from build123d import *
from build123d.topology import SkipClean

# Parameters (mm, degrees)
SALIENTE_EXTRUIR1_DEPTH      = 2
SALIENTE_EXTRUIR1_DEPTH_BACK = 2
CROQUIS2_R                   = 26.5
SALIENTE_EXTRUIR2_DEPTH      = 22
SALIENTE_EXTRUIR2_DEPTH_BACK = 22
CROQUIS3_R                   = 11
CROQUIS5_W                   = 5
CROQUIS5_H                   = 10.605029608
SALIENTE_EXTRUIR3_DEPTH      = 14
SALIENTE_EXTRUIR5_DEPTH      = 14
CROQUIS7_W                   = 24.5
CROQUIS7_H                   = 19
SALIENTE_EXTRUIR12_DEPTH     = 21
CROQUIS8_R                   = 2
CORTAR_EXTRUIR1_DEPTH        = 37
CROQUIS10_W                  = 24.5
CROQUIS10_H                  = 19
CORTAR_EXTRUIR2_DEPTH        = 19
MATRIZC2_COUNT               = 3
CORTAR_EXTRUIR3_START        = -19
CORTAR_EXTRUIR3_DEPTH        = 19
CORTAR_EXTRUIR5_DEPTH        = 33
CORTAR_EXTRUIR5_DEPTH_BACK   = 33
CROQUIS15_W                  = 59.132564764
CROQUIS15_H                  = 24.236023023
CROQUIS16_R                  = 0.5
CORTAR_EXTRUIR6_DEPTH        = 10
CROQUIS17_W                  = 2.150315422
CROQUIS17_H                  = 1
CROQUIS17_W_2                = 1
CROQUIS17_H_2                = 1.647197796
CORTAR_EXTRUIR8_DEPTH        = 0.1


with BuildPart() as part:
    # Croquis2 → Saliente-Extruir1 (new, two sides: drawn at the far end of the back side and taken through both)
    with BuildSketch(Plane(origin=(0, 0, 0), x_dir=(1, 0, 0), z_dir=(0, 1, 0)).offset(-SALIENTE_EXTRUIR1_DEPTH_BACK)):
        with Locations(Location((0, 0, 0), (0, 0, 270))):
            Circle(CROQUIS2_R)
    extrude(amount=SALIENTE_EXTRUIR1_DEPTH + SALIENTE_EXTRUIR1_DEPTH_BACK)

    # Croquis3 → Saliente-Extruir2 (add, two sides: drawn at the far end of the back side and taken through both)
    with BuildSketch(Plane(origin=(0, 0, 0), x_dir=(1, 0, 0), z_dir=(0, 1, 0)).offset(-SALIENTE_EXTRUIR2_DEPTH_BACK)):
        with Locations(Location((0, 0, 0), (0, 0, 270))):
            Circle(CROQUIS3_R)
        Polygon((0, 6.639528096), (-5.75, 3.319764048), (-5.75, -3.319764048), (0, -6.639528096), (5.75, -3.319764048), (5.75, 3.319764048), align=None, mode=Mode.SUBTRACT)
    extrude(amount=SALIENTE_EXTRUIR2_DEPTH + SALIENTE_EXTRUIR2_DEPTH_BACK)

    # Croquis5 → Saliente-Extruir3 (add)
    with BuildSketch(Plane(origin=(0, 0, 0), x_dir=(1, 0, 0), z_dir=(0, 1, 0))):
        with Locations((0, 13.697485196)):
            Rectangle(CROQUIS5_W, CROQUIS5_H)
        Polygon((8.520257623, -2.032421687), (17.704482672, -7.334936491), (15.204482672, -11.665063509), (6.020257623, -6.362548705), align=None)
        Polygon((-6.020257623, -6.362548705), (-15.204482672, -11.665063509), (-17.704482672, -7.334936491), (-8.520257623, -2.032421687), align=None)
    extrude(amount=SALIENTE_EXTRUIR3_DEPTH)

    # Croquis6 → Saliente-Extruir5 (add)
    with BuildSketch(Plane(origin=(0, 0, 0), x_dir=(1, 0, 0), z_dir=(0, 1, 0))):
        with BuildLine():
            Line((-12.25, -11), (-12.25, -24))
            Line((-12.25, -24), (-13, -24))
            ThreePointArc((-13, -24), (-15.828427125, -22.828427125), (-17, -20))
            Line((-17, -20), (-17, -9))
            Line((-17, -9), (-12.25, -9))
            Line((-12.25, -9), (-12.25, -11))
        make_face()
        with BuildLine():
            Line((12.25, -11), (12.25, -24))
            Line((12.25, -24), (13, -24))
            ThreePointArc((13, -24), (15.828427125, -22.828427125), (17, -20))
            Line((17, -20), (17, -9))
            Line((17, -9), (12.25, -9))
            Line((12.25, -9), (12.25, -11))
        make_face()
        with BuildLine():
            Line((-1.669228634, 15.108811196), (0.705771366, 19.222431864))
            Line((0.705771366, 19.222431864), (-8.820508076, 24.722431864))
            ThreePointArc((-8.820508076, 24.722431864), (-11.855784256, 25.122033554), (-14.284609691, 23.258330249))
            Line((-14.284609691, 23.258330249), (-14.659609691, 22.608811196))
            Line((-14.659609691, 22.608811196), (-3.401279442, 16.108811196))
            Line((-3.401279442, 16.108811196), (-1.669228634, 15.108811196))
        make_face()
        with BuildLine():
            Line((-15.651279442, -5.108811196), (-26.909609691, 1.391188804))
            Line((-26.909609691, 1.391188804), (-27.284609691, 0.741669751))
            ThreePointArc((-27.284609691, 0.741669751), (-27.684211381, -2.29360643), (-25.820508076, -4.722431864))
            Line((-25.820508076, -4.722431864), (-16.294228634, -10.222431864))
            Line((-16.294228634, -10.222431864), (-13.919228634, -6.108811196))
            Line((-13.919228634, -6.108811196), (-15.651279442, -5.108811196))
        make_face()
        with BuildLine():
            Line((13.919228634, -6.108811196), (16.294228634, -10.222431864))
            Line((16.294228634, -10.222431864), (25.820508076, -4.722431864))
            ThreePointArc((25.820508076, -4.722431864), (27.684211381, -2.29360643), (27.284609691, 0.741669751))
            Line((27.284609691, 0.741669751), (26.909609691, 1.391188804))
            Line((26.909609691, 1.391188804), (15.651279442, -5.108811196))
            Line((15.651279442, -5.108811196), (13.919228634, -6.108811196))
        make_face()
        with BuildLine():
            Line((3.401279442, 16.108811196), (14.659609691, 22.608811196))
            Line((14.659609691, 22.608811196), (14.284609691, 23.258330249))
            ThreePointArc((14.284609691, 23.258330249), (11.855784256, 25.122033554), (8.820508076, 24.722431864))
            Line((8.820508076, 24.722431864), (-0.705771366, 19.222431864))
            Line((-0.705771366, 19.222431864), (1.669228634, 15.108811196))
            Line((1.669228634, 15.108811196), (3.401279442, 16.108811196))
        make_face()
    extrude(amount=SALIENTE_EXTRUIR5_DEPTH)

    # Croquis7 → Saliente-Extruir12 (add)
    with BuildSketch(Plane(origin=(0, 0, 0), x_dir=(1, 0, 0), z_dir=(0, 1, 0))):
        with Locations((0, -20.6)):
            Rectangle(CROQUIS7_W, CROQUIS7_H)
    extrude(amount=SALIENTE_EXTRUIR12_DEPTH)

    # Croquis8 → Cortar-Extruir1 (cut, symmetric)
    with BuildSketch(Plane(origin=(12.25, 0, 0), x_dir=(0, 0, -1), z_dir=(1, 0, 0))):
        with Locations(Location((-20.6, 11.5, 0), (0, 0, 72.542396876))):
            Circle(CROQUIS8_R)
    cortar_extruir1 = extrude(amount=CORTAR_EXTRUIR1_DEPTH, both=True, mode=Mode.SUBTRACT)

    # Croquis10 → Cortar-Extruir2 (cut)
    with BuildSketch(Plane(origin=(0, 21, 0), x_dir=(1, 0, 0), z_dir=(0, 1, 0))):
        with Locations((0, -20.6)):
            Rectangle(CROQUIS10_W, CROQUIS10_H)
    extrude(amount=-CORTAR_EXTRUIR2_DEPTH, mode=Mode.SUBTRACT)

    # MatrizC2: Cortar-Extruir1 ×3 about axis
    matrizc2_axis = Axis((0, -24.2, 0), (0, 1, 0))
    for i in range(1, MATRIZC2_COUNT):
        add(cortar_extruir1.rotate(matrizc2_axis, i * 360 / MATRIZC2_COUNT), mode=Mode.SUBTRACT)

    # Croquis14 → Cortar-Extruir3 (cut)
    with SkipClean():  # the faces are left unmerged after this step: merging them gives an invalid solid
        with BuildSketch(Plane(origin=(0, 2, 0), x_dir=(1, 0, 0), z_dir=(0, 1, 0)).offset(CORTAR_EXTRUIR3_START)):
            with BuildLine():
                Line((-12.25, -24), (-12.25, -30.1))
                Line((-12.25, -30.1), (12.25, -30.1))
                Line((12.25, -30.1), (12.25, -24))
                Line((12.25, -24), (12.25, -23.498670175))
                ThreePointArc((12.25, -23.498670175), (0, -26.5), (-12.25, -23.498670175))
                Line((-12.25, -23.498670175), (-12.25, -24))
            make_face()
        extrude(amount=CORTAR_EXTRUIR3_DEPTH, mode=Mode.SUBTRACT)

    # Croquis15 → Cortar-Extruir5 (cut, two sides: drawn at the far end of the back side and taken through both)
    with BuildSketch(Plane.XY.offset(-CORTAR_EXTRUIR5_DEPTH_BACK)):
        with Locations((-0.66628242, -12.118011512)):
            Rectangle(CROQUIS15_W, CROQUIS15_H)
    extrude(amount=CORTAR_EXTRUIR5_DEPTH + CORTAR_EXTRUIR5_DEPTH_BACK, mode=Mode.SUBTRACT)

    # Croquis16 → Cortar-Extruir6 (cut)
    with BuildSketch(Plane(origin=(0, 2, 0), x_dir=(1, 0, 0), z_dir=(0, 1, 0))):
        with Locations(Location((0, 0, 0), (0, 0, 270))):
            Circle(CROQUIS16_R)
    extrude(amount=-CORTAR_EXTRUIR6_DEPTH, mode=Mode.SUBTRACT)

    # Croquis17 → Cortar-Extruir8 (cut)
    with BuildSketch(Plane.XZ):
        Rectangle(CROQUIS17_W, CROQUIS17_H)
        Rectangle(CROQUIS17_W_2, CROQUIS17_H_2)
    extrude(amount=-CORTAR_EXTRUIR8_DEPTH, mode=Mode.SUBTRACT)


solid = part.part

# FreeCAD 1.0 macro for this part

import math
import FreeCAD as App
import Part
import Sketcher
Q = App.Units.Quantity

doc = App.newDocument("Part")
body = doc.addObject("PartDesign::Body", "Body")

sketch1 = body.newObject("Sketcher::SketchObject", "Sketch")
sketch1.AttachmentSupport = (doc.getObject("XZ_Plane"), [""])
sketch1.MapMode = "FlatFace"
sketch1.addGeometry(Part.Circle(App.Vector(0, 0, 0), App.Vector(0, 0, 1), 26), False)
sketch1.addConstraint([
    Sketcher.Constraint("Coincident", 0, 3, -1, 1),
    Sketcher.Constraint("Diameter", 0, Q("53 mm")),
])
pad1 = body.newObject("PartDesign::Pad", "Pad")
pad1.Profile = sketch1
pad1.Type = "TwoLengths"
pad1.Length = 2
pad1.Length2 = 2
pad1.Reversed = True

sketch2 = body.newObject("Sketcher::SketchObject", "Sketch001")
sketch2.AttachmentSupport = (doc.getObject("XZ_Plane"), [""])
sketch2.MapMode = "FlatFace"
sketch2.addGeometry([
    Part.Circle(App.Vector(0, 0, 0), App.Vector(0, 0, 1), 11),
    Part.LineSegment(App.Vector(-6, -3, 0), App.Vector(0, -7, 0)),
    Part.LineSegment(App.Vector(0, -7, 0), App.Vector(6, -3, 0)),
    Part.LineSegment(App.Vector(6, -3, 0), App.Vector(6, 3, 0)),
    Part.LineSegment(App.Vector(6, 3, 0), App.Vector(0, 7, 0)),
    Part.LineSegment(App.Vector(0, 7, 0), App.Vector(-6, 3, 0)),
    Part.LineSegment(App.Vector(-6, 3, 0), App.Vector(-6, -3, 0)),
], False)
sketch2.addConstraint([
    Sketcher.Constraint("Coincident", 1, 2, 2, 1),
    Sketcher.Constraint("Coincident", 2, 2, 3, 1),
    Sketcher.Constraint("Coincident", 3, 2, 4, 1),
    Sketcher.Constraint("Coincident", 4, 2, 5, 1),
    Sketcher.Constraint("Coincident", 5, 2, 6, 1),
    Sketcher.Constraint("Coincident", 6, 2, 1, 1),
    Sketcher.Constraint("Vertical", 3),
    Sketcher.Constraint("Vertical", 6),
    Sketcher.Constraint("Coincident", 0, 3, -1, 1),
    Sketcher.Constraint("Symmetric", 1, 2, 4, 2, -1, 1),
    Sketcher.Constraint("Symmetric", 2, 2, 5, 2, -1, 1),
    Sketcher.Constraint("PointOnObject", 1, 2, -2),
    Sketcher.Constraint("Parallel", 1, 4),
    Sketcher.Constraint("Horizontal", 3, 2, 5, 2),
    Sketcher.Constraint("Diameter", 0, Q("22 mm")),
    Sketcher.Constraint("Angle", 1, Q("-30 deg")),
    Sketcher.Constraint("DistanceX", 5, 2, 3, 2, Q("11.5 mm")),
    Sketcher.Constraint("DistanceY", 3, 1, 3, 2, Q("6.639528 mm")),
])
pad2 = body.newObject("PartDesign::Pad", "Pad001")
pad2.Profile = sketch2
pad2.Type = "TwoLengths"
pad2.Length = 22
pad2.Length2 = 22
pad2.Reversed = True

sketch3 = body.newObject("Sketcher::SketchObject", "Sketch002")
sketch3.AttachmentSupport = (doc.getObject("XZ_Plane"), [""])
sketch3.MapMode = "FlatFace"
sketch3.addGeometry([
    Part.LineSegment(App.Vector(-2.5, -19, 0), App.Vector(-2.5, -8.4, 0)),
    Part.LineSegment(App.Vector(-2.5, -8.4, 0), App.Vector(2.5, -8.4, 0)),
    Part.LineSegment(App.Vector(2.5, -8.4, 0), App.Vector(2.5, -19, 0)),
    Part.LineSegment(App.Vector(2.5, -19, 0), App.Vector(-2.5, -19, 0)),
    Part.LineSegment(App.Vector(17.7, 7.3, 0), App.Vector(8.5, 2, 0)),
    Part.LineSegment(App.Vector(8.5, 2, 0), App.Vector(6, 6.4, 0)),
    Part.LineSegment(App.Vector(6, 6.4, 0), App.Vector(15.2, 11.7, 0)),
    Part.LineSegment(App.Vector(15.2, 11.7, 0), App.Vector(17.7, 7.3, 0)),
    Part.LineSegment(App.Vector(-15.2, 11.7, 0), App.Vector(-6, 6.4, 0)),
    Part.LineSegment(App.Vector(-6, 6.4, 0), App.Vector(-8.5, 2, 0)),
    Part.LineSegment(App.Vector(-8.5, 2, 0), App.Vector(-17.7, 7.3, 0)),
    Part.LineSegment(App.Vector(-17.7, 7.3, 0), App.Vector(-15.2, 11.7, 0)),
], False)
sketch3.addConstraint([
    Sketcher.Constraint("Coincident", 0, 2, 1, 1),
    Sketcher.Constraint("Coincident", 1, 2, 2, 1),
    Sketcher.Constraint("Coincident", 2, 2, 3, 1),
    Sketcher.Constraint("Coincident", 3, 2, 0, 1),
    Sketcher.Constraint("Coincident", 4, 2, 5, 1),
    Sketcher.Constraint("Coincident", 5, 2, 6, 1),
    Sketcher.Constraint("Coincident", 6, 2, 7, 1),
    Sketcher.Constraint("Coincident", 7, 2, 4, 1),
    Sketcher.Constraint("Coincident", 8, 2, 9, 1),
    Sketcher.Constraint("Coincident", 9, 2, 10, 1),
    Sketcher.Constraint("Coincident", 10, 2, 11, 1),
    Sketcher.Constraint("Coincident", 11, 2, 8, 1),
    Sketcher.Constraint("Vertical", 0),
    Sketcher.Constraint("Horizontal", 1),
    Sketcher.Constraint("Vertical", 2),
    Sketcher.Constraint("Horizontal", 3),
    Sketcher.Constraint("Symmetric", 5, 2, 8, 2, -2),
    Sketcher.Constraint("Symmetric", 4, 2, 9, 2, -2),
    Sketcher.Constraint("Symmetric", 7, 2, 10, 2, -2),
    Sketcher.Constraint("Symmetric", 6, 2, 11, 2, -2),
    Sketcher.Constraint("Perpendicular", 4, 5),
    Sketcher.Constraint("Perpendicular", 5, 6),
    Sketcher.Constraint("Perpendicular", 6, 7),
    Sketcher.Constraint("DistanceX", 1, 1, 1, 2, Q("5 mm")),
    Sketcher.Constraint("Angle", 4, Q("-150 deg")),
    Sketcher.Constraint("Distance", 5, Q("5 mm")),
    Sketcher.Constraint("DistanceY", 2, 2, -1, 1, Q("19 mm")),
    Sketcher.Constraint("DistanceX", 0, 2, -1, 1, Q("2.5 mm")),
    Sketcher.Constraint("DistanceY", 0, 1, 0, 2, Q("10.60503 mm")),
    Sketcher.Constraint("Distance", 4, Q("10.60503 mm")),
    Sketcher.Constraint("DistanceY", -1, 1, 4, 2, Q("2.032422 mm")),
    Sketcher.Constraint("DistanceX", 8, 2, 6, 2, Q("21.22474 mm")),
])
pad3 = body.newObject("PartDesign::Pad", "Pad002")
pad3.Profile = sketch3
pad3.Length = 14
pad3.Reversed = True

sketch4 = body.newObject("Sketcher::SketchObject", "Sketch003")
sketch4.AttachmentSupport = (doc.getObject("XZ_Plane"), [""])
sketch4.MapMode = "FlatFace"
sketch4.addGeometry([
    Part.LineSegment(App.Vector(-12.2, 24, 0), App.Vector(-12.2, 9, 0)),
    Part.LineSegment(App.Vector(-12.2, 9, 0), App.Vector(-15.6, 9, 0)),
    Part.LineSegment(App.Vector(-15.6, 9, 0), App.Vector(-13.9, 6.1, 0)),
    Part.LineSegment(App.Vector(-13.9, 6.1, 0), App.Vector(-15.7, 5.1, 0)),
    Part.LineSegment(App.Vector(-15.7, 5.1, 0), App.Vector(-26.9, -1.4, 0)),
    Part.LineSegment(App.Vector(-26.9, -1.4, 0), App.Vector(-27.3, -0.7, 0)),
    Part.ArcOfCircle(Part.Circle(App.Vector(-23.8, 1.3, 0), App.Vector(0, 0, 1), 4), math.radians(120), math.radians(210)),
    Part.LineSegment(App.Vector(-25.8, 4.7, 0), App.Vector(-17, 9.8, 0)),
    Part.LineSegment(App.Vector(-17, 9.8, 0), App.Vector(-17, 20, 0)),
    Part.ArcOfCircle(Part.Circle(App.Vector(-13, 20, 0), App.Vector(0, 0, 1), 4), math.radians(90), math.radians(180)),
    Part.LineSegment(App.Vector(-13, 24, 0), App.Vector(-12.2, 24, 0)),
    Part.LineSegment(App.Vector(12.2, 9, 0), App.Vector(12.2, 24, 0)),
    Part.LineSegment(App.Vector(12.2, 24, 0), App.Vector(13, 24, 0)),
    Part.ArcOfCircle(Part.Circle(App.Vector(13, 20, 0), App.Vector(0, 0, 1), 4), math.radians(0), math.radians(90)),
    Part.LineSegment(App.Vector(17, 20, 0), App.Vector(17, 9.8, 0)),
    Part.LineSegment(App.Vector(17, 9.8, 0), App.Vector(25.8, 4.7, 0)),
    Part.ArcOfCircle(Part.Circle(App.Vector(23.8, 1.3, 0), App.Vector(0, 0, 1), 4), math.radians(-30), math.radians(60)),
    Part.LineSegment(App.Vector(27.3, -0.7, 0), App.Vector(26.9, -1.4, 0)),
    Part.LineSegment(App.Vector(26.9, -1.4, 0), App.Vector(15.7, 5.1, 0)),
    Part.LineSegment(App.Vector(15.7, 5.1, 0), App.Vector(13.9, 6.1, 0)),
    Part.LineSegment(App.Vector(13.9, 6.1, 0), App.Vector(15.6, 9, 0)),
    Part.LineSegment(App.Vector(15.6, 9, 0), App.Vector(12.2, 9, 0)),
    Part.LineSegment(App.Vector(-3.4, -16.1, 0), App.Vector(-1.7, -15.1, 0)),
    Part.LineSegment(App.Vector(-1.7, -15.1, 0), App.Vector(0, -18, 0)),
    Part.LineSegment(App.Vector(0, -18, 0), App.Vector(1.7, -15.1, 0)),
    Part.LineSegment(App.Vector(1.7, -15.1, 0), App.Vector(3.4, -16.1, 0)),
    Part.LineSegment(App.Vector(3.4, -16.1, 0), App.Vector(14.7, -22.6, 0)),
    Part.LineSegment(App.Vector(14.7, -22.6, 0), App.Vector(14.3, -23.3, 0)),
    Part.ArcOfCircle(Part.Circle(App.Vector(10.8, -21.3, 0), App.Vector(0, 0, 1), 4), math.radians(-120), math.radians(-30)),
    Part.LineSegment(App.Vector(8.8, -24.7, 0), App.Vector(0, -19.6, 0)),
    Part.LineSegment(App.Vector(0, -19.6, 0), App.Vector(-8.8, -24.7, 0)),
    Part.ArcOfCircle(Part.Circle(App.Vector(-10.8, -21.3, 0), App.Vector(0, 0, 1), 4), math.radians(-150), math.radians(-60)),
    Part.LineSegment(App.Vector(-14.3, -23.3, 0), App.Vector(-14.7, -22.6, 0)),
    Part.LineSegment(App.Vector(-14.7, -22.6, 0), App.Vector(-3.4, -16.1, 0)),
], False)
sketch4.addConstraint([
    Sketcher.Constraint("Coincident", 0, 2, 1, 1),
    Sketcher.Constraint("Coincident", 1, 2, 2, 1),
    Sketcher.Constraint("Coincident", 2, 2, 3, 1),
    Sketcher.Constraint("Coincident", 3, 2, 4, 1),
    Sketcher.Constraint("Coincident", 4, 2, 5, 1),
    Sketcher.Constraint("Tangent", 5, 2, 6, 2),
    Sketcher.Constraint("Tangent", 6, 1, 7, 1),
    Sketcher.Constraint("Coincident", 7, 2, 8, 1),
    Sketcher.Constraint("Tangent", 8, 2, 9, 2),
    Sketcher.Constraint("Tangent", 9, 1, 10, 1),
    Sketcher.Constraint("Coincident", 10, 2, 0, 1),
    Sketcher.Constraint("Coincident", 11, 2, 12, 1),
    Sketcher.Constraint("Tangent", 12, 2, 13, 2),
    Sketcher.Constraint("Tangent", 13, 1, 14, 1),
    Sketcher.Constraint("Coincident", 14, 2, 15, 1),
    Sketcher.Constraint("Tangent", 15, 2, 16, 2),
    Sketcher.Constraint("Tangent", 16, 1, 17, 1),
    Sketcher.Constraint("Coincident", 17, 2, 18, 1),
    Sketcher.Constraint("Coincident", 18, 2, 19, 1),
    Sketcher.Constraint("Coincident", 19, 2, 20, 1),
    Sketcher.Constraint("Coincident", 20, 2, 21, 1),
    Sketcher.Constraint("Coincident", 21, 2, 11, 1),
    Sketcher.Constraint("Coincident", 22, 2, 23, 1),
    Sketcher.Constraint("Coincident", 23, 2, 24, 1),
    Sketcher.Constraint("Coincident", 24, 2, 25, 1),
    Sketcher.Constraint("Coincident", 25, 2, 26, 1),
    Sketcher.Constraint("Coincident", 26, 2, 27, 1),
    Sketcher.Constraint("Tangent", 27, 2, 28, 2),
    Sketcher.Constraint("Tangent", 28, 1, 29, 1),
    Sketcher.Constraint("Coincident", 29, 2, 30, 1),
    Sketcher.Constraint("Tangent", 30, 2, 31, 2),
    Sketcher.Constraint("Tangent", 31, 1, 32, 1),
    Sketcher.Constraint("Coincident", 32, 2, 33, 1),
    Sketcher.Constraint("Coincident", 33, 2, 22, 1),
    Sketcher.Constraint("Vertical", 0),
    Sketcher.Constraint("Horizontal", 1),
    Sketcher.Constraint("Vertical", 8),
    Sketcher.Constraint("Horizontal", 10),
    Sketcher.Constraint("Vertical", 11),
    Sketcher.Constraint("Horizontal", 12),
    Sketcher.Constraint("Vertical", 14),
    Sketcher.Constraint("Horizontal", 21),
    Sketcher.Constraint("Equal", 6, 9),
    Sketcher.Constraint("Equal", 9, 13),
    Sketcher.Constraint("Equal", 13, 16),
    Sketcher.Constraint("Equal", 16, 28),
    Sketcher.Constraint("Equal", 28, 31),
    Sketcher.Constraint("Symmetric", 9, 3, 13, 3, -2),
    Sketcher.Constraint("Symmetric", 6, 3, 16, 3, -2),
    Sketcher.Constraint("Symmetric", 28, 3, 31, 3, -2),
    Sketcher.Constraint("Symmetric", 4, 2, 17, 2, -2),
    Sketcher.Constraint("Symmetric", 3, 2, 18, 2, -2),
    Sketcher.Constraint("Symmetric", 2, 2, 19, 2, -2),
    Sketcher.Constraint("Symmetric", 1, 2, 20, 2, -2),
    Sketcher.Constraint("Symmetric", 22, 2, 24, 2, -2),
    Sketcher.Constraint("Symmetric", 26, 2, 32, 2, -2),
    Sketcher.Constraint("Symmetric", 25, 2, 33, 2, -2),
    Sketcher.Constraint("PointOnObject", 23, 2, -2),
    Sketcher.Constraint("PointOnObject", 29, 2, -2),
    Sketcher.Constraint("Perpendicular", 2, 3),
    Sketcher.Constraint("Parallel", 3, 4),
    Sketcher.Constraint("Perpendicular", 4, 5),
    Sketcher.Constraint("Perpendicular", 5, 7),
    Sketcher.Constraint("Perpendicular", 15, 17),
    Sketcher.Constraint("Parallel", 7, 22),
    Sketcher.Constraint("Perpendicular", 22, 23),
    Sketcher.Constraint("Parallel", 25, 26),
    Sketcher.Constraint("Perpendicular", 26, 27),
    Sketcher.Constraint("Perpendicular", 27, 29),
    Sketcher.Constraint("Equal", 10, 12),
    Sketcher.Constraint("Equal", 19, 22),
    Sketcher.Constraint("Equal", 20, 23),
    Sketcher.Constraint("Equal", 18, 26),
    Sketcher.Constraint("Equal", 17, 27),
    Sketcher.Constraint("Equal", 15, 29),
    Sketcher.Constraint("Radius", 6, Q("4 mm")),
    Sketcher.Constraint("DistanceY", 0, 2, 0, 1, Q("15 mm")),
    Sketcher.Constraint("Angle", 2, Q("-60 deg")),
    Sketcher.Constraint("Distance", 3, Q("2 mm")),
    Sketcher.Constraint("Distance", 4, Q("13 mm")),
    Sketcher.Constraint("DistanceX", 9, 3, -1, 1, Q("13 mm")),
    Sketcher.Constraint("DistanceY", -1, 1, 9, 3, Q("20 mm")),
    Sketcher.Constraint("DistanceY", 23, 2, -1, 1, Q("18 mm")),
    Sketcher.Constraint("DistanceX", 10, 1, 10, 2, Q("0.75 mm")),
    Sketcher.Constraint("Distance", 5, Q("0.75 mm")),
    Sketcher.Constraint("DistanceX", 1, 2, 1, 1, Q("3.338457 mm")),
])
pad4 = body.newObject("PartDesign::Pad", "Pad003")
pad4.Profile = sketch4
pad4.Length = 14
pad4.Reversed = True

sketch5 = body.newObject("Sketcher::SketchObject", "Sketch004")
sketch5.AttachmentSupport = (doc.getObject("XZ_Plane"), [""])
sketch5.MapMode = "FlatFace"
sketch5.addGeometry([
    Part.LineSegment(App.Vector(-12, 11, 0), App.Vector(-12, 30, 0)),
    Part.LineSegment(App.Vector(-12, 30, 0), App.Vector(12, 30, 0)),
    Part.LineSegment(App.Vector(12, 30, 0), App.Vector(12, 11, 0)),
    Part.LineSegment(App.Vector(12, 11, 0), App.Vector(-12, 11, 0)),
], False)
sketch5.addConstraint([
    Sketcher.Constraint("Coincident", 0, 2, 1, 1),
    Sketcher.Constraint("Coincident", 1, 2, 2, 1),
    Sketcher.Constraint("Coincident", 2, 2, 3, 1),
    Sketcher.Constraint("Coincident", 3, 2, 0, 1),
    Sketcher.Constraint("Vertical", 0),
    Sketcher.Constraint("Horizontal", 1),
    Sketcher.Constraint("Vertical", 2),
    Sketcher.Constraint("Horizontal", 3),
    Sketcher.Constraint("DistanceY", 0, 1, 0, 2, Q("19 mm")),
    Sketcher.Constraint("DistanceX", 1, 1, 1, 2, Q("24.5 mm")),
    Sketcher.Constraint("DistanceY", -1, 1, 0, 2, Q("30.1 mm")),
    Sketcher.Constraint("DistanceX", 0, 2, -1, 1, Q("12.25 mm")),
])
pad5 = body.newObject("PartDesign::Pad", "Pad004")
pad5.Profile = sketch5
pad5.Length = 21
pad5.Reversed = True

sketch6 = body.newObject("Sketcher::SketchObject", "Sketch005")
sketch6.AttachmentSupport = (doc.getObject("YZ_Plane"), [""])
sketch6.MapMode = "FlatFace"
sketch6.AttachmentOffset = App.Placement(App.Vector(0, 0, 12.25), App.Rotation())
sketch6.addGeometry(Part.Circle(App.Vector(11.5, 20.6, 0), App.Vector(0, 0, 1), 2), False)
sketch6.addConstraint([
    Sketcher.Constraint("Diameter", 0, Q("4 mm")),
    Sketcher.Constraint("DistanceX", -1, 1, 0, 3, Q("11.5 mm")),
    Sketcher.Constraint("DistanceY", -1, 1, 0, 3, Q("20.6 mm")),
])
pocket1 = body.newObject("PartDesign::Pocket", "Pocket")
pocket1.Profile = sketch6
pocket1.Length = 74
pocket1.Midplane = True

sketch7 = body.newObject("Sketcher::SketchObject", "Sketch006")
sketch7.AttachmentSupport = (doc.getObject("XZ_Plane"), [""])
sketch7.MapMode = "FlatFace"
sketch7.AttachmentOffset = App.Placement(App.Vector(0, 0, -21), App.Rotation())
sketch7.addGeometry([
    Part.LineSegment(App.Vector(-12, 11, 0), App.Vector(-12, 30, 0)),
    Part.LineSegment(App.Vector(-12, 30, 0), App.Vector(12, 30, 0)),
    Part.LineSegment(App.Vector(12, 30, 0), App.Vector(12, 11, 0)),
    Part.LineSegment(App.Vector(12, 11, 0), App.Vector(-12, 11, 0)),
], False)
sketch7.addConstraint([
    Sketcher.Constraint("Coincident", 0, 2, 1, 1),
    Sketcher.Constraint("Coincident", 1, 2, 2, 1),
    Sketcher.Constraint("Coincident", 2, 2, 3, 1),
    Sketcher.Constraint("Coincident", 3, 2, 0, 1),
    Sketcher.Constraint("Vertical", 0),
    Sketcher.Constraint("Horizontal", 1),
    Sketcher.Constraint("Vertical", 2),
    Sketcher.Constraint("Horizontal", 3),
    Sketcher.Constraint("DistanceY", 0, 1, 0, 2, Q("19 mm")),
    Sketcher.Constraint("DistanceX", 1, 1, 1, 2, Q("24.5 mm")),
    Sketcher.Constraint("DistanceY", -1, 1, 0, 2, Q("30.1 mm")),
    Sketcher.Constraint("DistanceX", 0, 2, -1, 1, Q("12.25 mm")),
])
pocket2 = body.newObject("PartDesign::Pocket", "Pocket001")
pocket2.Profile = sketch7
pocket2.Length = 19
pocket2.Reversed = True
doc.recompute()

polarpattern = body.newObject("PartDesign::PolarPattern", "PolarPattern")
polarpattern.Originals = [pocket1]
polarpattern.Axis = (doc.getObject("Y_Axis"), [""])
polarpattern.Angle = 360
polarpattern.Occurrences = 3
body.Tip = polarpattern

sketch8 = body.newObject("Sketcher::SketchObject", "Sketch007")
sketch8.AttachmentSupport = (doc.getObject("XZ_Plane"), [""])
sketch8.MapMode = "FlatFace"
sketch8.AttachmentOffset = App.Placement(App.Vector(0, 0, 17), App.Rotation())
sketch8.addGeometry([
    Part.LineSegment(App.Vector(-12, 30, 0), App.Vector(12, 30, 0)),
    Part.LineSegment(App.Vector(12, 30, 0), App.Vector(12, 23, 0)),
    Part.ArcOfCircle(Part.Circle(App.Vector(0, 0, 0), App.Vector(0, 0, 1), 26), math.radians(62), math.radians(118)),
    Part.LineSegment(App.Vector(-12, 23, 0), App.Vector(-12, 30, 0)),
], False)
sketch8.addConstraint([
    Sketcher.Constraint("Coincident", 0, 2, 1, 1),
    Sketcher.Constraint("Coincident", 1, 2, 2, 1),
    Sketcher.Constraint("Coincident", 2, 2, 3, 1),
    Sketcher.Constraint("Coincident", 3, 2, 0, 1),
    Sketcher.Constraint("Horizontal", 0),
    Sketcher.Constraint("Vertical", 1),
    Sketcher.Constraint("Vertical", 3),
    Sketcher.Constraint("Coincident", 2, 3, -1, 1),
    Sketcher.Constraint("Horizontal", 1, 2, 2, 2),
    Sketcher.Constraint("Radius", 2, Q("26.5 mm")),
    Sketcher.Constraint("DistanceX", 0, 1, 0, 2, Q("24.5 mm")),
    Sketcher.Constraint("DistanceY", -1, 1, 0, 2, Q("30.1 mm")),
])
pocket3 = body.newObject("PartDesign::Pocket", "Pocket002")
pocket3.Profile = sketch8
pocket3.Length = 19

sketch9 = body.newObject("Sketcher::SketchObject", "Sketch008")
sketch9.AttachmentSupport = (doc.getObject("XY_Plane"), [""])
sketch9.MapMode = "FlatFace"
sketch9.addGeometry([
    Part.LineSegment(App.Vector(-30, 0, 0), App.Vector(-30, -24, 0)),
    Part.LineSegment(App.Vector(-30, -24, 0), App.Vector(29, -24, 0)),
    Part.LineSegment(App.Vector(29, -24, 0), App.Vector(29, 0, 0)),
    Part.LineSegment(App.Vector(29, 0, 0), App.Vector(-30, 0, 0)),
], False)
sketch9.addConstraint([
    Sketcher.Constraint("Coincident", 0, 2, 1, 1),
    Sketcher.Constraint("Coincident", 1, 2, 2, 1),
    Sketcher.Constraint("Coincident", 2, 2, 3, 1),
    Sketcher.Constraint("Coincident", 3, 2, 0, 1),
    Sketcher.Constraint("Vertical", 0),
    Sketcher.Constraint("Horizontal", 1),
    Sketcher.Constraint("Vertical", 2),
    Sketcher.Constraint("Horizontal", 3),
    Sketcher.Constraint("PointOnObject", 2, 2, -1),
    Sketcher.Constraint("DistanceX", -1, 1, 1, 2, Q("28.9 mm")),
    Sketcher.Constraint("DistanceX", 1, 1, 1, 2, Q("59.132565 mm")),
    Sketcher.Constraint("DistanceY", 0, 2, 0, 1, Q("24.236023 mm")),
])
pocket4 = body.newObject("PartDesign::Pocket", "Pocket003")
pocket4.Profile = sketch9
pocket4.Type = "ThroughAll"
pocket4.Midplane = True

sketch10 = body.newObject("Sketcher::SketchObject", "Sketch009")
sketch10.AttachmentSupport = (doc.getObject("XZ_Plane"), [""])
sketch10.MapMode = "FlatFace"
sketch10.AttachmentOffset = App.Placement(App.Vector(0, 0, -2), App.Rotation())
sketch10.addGeometry(Part.Circle(App.Vector(0, 0, 0), App.Vector(0, 0, 1), 0.5), False)
sketch10.addConstraint([
    Sketcher.Constraint("Coincident", 0, 3, -1, 1),
    Sketcher.Constraint("Diameter", 0, Q("1 mm")),
])
pocket5 = body.newObject("PartDesign::Pocket", "Pocket004")
pocket5.Profile = sketch10
pocket5.Length = 10
pocket5.Reversed = True

sketch11 = body.newObject("Sketcher::SketchObject", "Sketch010")
sketch11.AttachmentSupport = (doc.getObject("XZ_Plane"), [""])
sketch11.MapMode = "FlatFace"
sketch11.addGeometry([
    Part.LineSegment(App.Vector(-1.08, 0.5, 0), App.Vector(-1.08, -0.5, 0)),
    Part.LineSegment(App.Vector(-1.08, -0.5, 0), App.Vector(-0.5, -0.5, 0)),
    Part.LineSegment(App.Vector(-0.5, -0.5, 0), App.Vector(-0.5, -0.82, 0)),
    Part.LineSegment(App.Vector(-0.5, -0.82, 0), App.Vector(0.5, -0.82, 0)),
    Part.LineSegment(App.Vector(0.5, -0.82, 0), App.Vector(0.5, -0.5, 0)),
    Part.LineSegment(App.Vector(0.5, -0.5, 0), App.Vector(1.08, -0.5, 0)),
    Part.LineSegment(App.Vector(1.08, -0.5, 0), App.Vector(1.08, 0.5, 0)),
    Part.LineSegment(App.Vector(1.08, 0.5, 0), App.Vector(0.5, 0.5, 0)),
    Part.LineSegment(App.Vector(0.5, 0.5, 0), App.Vector(0.5, 0.82, 0)),
    Part.LineSegment(App.Vector(0.5, 0.82, 0), App.Vector(-0.5, 0.82, 0)),
    Part.LineSegment(App.Vector(-0.5, 0.82, 0), App.Vector(-0.5, 0.5, 0)),
    Part.LineSegment(App.Vector(-0.5, 0.5, 0), App.Vector(-1.08, 0.5, 0)),
], False)
sketch11.addConstraint([
    Sketcher.Constraint("Coincident", 0, 2, 1, 1),
    Sketcher.Constraint("Coincident", 1, 2, 2, 1),
    Sketcher.Constraint("Coincident", 2, 2, 3, 1),
    Sketcher.Constraint("Coincident", 3, 2, 4, 1),
    Sketcher.Constraint("Coincident", 4, 2, 5, 1),
    Sketcher.Constraint("Coincident", 5, 2, 6, 1),
    Sketcher.Constraint("Coincident", 6, 2, 7, 1),
    Sketcher.Constraint("Coincident", 7, 2, 8, 1),
    Sketcher.Constraint("Coincident", 8, 2, 9, 1),
    Sketcher.Constraint("Coincident", 9, 2, 10, 1),
    Sketcher.Constraint("Coincident", 10, 2, 11, 1),
    Sketcher.Constraint("Coincident", 11, 2, 0, 1),
    Sketcher.Constraint("Vertical", 0),
    Sketcher.Constraint("Horizontal", 1),
    Sketcher.Constraint("Vertical", 2),
    Sketcher.Constraint("Horizontal", 3),
    Sketcher.Constraint("Vertical", 4),
    Sketcher.Constraint("Horizontal", 5),
    Sketcher.Constraint("Vertical", 6),
    Sketcher.Constraint("Horizontal", 7),
    Sketcher.Constraint("Vertical", 8),
    Sketcher.Constraint("Horizontal", 9),
    Sketcher.Constraint("Vertical", 10),
    Sketcher.Constraint("Horizontal", 11),
    Sketcher.Constraint("Symmetric", 0, 2, 6, 2, -1, 1),
    Sketcher.Constraint("Symmetric", 2, 2, 8, 2, -1, 1),
    Sketcher.Constraint("Symmetric", 4, 2, 10, 2, -1, 1),
    Sketcher.Constraint("Symmetric", 1, 2, 4, 2, -2),
    Sketcher.Constraint("Equal", 9, 0),
    Sketcher.Constraint("DistanceX", 3, 1, 3, 2, Q("1 mm")),
    Sketcher.Constraint("DistanceY", 2, 2, 2, 1, Q("0.323599 mm")),
    Sketcher.Constraint("DistanceX", 1, 1, 1, 2, Q("0.575158 mm")),
])
pocket6 = body.newObject("PartDesign::Pocket", "Pocket005")
pocket6.Profile = sketch11
pocket6.Length = 0.1

doc.recompute()
